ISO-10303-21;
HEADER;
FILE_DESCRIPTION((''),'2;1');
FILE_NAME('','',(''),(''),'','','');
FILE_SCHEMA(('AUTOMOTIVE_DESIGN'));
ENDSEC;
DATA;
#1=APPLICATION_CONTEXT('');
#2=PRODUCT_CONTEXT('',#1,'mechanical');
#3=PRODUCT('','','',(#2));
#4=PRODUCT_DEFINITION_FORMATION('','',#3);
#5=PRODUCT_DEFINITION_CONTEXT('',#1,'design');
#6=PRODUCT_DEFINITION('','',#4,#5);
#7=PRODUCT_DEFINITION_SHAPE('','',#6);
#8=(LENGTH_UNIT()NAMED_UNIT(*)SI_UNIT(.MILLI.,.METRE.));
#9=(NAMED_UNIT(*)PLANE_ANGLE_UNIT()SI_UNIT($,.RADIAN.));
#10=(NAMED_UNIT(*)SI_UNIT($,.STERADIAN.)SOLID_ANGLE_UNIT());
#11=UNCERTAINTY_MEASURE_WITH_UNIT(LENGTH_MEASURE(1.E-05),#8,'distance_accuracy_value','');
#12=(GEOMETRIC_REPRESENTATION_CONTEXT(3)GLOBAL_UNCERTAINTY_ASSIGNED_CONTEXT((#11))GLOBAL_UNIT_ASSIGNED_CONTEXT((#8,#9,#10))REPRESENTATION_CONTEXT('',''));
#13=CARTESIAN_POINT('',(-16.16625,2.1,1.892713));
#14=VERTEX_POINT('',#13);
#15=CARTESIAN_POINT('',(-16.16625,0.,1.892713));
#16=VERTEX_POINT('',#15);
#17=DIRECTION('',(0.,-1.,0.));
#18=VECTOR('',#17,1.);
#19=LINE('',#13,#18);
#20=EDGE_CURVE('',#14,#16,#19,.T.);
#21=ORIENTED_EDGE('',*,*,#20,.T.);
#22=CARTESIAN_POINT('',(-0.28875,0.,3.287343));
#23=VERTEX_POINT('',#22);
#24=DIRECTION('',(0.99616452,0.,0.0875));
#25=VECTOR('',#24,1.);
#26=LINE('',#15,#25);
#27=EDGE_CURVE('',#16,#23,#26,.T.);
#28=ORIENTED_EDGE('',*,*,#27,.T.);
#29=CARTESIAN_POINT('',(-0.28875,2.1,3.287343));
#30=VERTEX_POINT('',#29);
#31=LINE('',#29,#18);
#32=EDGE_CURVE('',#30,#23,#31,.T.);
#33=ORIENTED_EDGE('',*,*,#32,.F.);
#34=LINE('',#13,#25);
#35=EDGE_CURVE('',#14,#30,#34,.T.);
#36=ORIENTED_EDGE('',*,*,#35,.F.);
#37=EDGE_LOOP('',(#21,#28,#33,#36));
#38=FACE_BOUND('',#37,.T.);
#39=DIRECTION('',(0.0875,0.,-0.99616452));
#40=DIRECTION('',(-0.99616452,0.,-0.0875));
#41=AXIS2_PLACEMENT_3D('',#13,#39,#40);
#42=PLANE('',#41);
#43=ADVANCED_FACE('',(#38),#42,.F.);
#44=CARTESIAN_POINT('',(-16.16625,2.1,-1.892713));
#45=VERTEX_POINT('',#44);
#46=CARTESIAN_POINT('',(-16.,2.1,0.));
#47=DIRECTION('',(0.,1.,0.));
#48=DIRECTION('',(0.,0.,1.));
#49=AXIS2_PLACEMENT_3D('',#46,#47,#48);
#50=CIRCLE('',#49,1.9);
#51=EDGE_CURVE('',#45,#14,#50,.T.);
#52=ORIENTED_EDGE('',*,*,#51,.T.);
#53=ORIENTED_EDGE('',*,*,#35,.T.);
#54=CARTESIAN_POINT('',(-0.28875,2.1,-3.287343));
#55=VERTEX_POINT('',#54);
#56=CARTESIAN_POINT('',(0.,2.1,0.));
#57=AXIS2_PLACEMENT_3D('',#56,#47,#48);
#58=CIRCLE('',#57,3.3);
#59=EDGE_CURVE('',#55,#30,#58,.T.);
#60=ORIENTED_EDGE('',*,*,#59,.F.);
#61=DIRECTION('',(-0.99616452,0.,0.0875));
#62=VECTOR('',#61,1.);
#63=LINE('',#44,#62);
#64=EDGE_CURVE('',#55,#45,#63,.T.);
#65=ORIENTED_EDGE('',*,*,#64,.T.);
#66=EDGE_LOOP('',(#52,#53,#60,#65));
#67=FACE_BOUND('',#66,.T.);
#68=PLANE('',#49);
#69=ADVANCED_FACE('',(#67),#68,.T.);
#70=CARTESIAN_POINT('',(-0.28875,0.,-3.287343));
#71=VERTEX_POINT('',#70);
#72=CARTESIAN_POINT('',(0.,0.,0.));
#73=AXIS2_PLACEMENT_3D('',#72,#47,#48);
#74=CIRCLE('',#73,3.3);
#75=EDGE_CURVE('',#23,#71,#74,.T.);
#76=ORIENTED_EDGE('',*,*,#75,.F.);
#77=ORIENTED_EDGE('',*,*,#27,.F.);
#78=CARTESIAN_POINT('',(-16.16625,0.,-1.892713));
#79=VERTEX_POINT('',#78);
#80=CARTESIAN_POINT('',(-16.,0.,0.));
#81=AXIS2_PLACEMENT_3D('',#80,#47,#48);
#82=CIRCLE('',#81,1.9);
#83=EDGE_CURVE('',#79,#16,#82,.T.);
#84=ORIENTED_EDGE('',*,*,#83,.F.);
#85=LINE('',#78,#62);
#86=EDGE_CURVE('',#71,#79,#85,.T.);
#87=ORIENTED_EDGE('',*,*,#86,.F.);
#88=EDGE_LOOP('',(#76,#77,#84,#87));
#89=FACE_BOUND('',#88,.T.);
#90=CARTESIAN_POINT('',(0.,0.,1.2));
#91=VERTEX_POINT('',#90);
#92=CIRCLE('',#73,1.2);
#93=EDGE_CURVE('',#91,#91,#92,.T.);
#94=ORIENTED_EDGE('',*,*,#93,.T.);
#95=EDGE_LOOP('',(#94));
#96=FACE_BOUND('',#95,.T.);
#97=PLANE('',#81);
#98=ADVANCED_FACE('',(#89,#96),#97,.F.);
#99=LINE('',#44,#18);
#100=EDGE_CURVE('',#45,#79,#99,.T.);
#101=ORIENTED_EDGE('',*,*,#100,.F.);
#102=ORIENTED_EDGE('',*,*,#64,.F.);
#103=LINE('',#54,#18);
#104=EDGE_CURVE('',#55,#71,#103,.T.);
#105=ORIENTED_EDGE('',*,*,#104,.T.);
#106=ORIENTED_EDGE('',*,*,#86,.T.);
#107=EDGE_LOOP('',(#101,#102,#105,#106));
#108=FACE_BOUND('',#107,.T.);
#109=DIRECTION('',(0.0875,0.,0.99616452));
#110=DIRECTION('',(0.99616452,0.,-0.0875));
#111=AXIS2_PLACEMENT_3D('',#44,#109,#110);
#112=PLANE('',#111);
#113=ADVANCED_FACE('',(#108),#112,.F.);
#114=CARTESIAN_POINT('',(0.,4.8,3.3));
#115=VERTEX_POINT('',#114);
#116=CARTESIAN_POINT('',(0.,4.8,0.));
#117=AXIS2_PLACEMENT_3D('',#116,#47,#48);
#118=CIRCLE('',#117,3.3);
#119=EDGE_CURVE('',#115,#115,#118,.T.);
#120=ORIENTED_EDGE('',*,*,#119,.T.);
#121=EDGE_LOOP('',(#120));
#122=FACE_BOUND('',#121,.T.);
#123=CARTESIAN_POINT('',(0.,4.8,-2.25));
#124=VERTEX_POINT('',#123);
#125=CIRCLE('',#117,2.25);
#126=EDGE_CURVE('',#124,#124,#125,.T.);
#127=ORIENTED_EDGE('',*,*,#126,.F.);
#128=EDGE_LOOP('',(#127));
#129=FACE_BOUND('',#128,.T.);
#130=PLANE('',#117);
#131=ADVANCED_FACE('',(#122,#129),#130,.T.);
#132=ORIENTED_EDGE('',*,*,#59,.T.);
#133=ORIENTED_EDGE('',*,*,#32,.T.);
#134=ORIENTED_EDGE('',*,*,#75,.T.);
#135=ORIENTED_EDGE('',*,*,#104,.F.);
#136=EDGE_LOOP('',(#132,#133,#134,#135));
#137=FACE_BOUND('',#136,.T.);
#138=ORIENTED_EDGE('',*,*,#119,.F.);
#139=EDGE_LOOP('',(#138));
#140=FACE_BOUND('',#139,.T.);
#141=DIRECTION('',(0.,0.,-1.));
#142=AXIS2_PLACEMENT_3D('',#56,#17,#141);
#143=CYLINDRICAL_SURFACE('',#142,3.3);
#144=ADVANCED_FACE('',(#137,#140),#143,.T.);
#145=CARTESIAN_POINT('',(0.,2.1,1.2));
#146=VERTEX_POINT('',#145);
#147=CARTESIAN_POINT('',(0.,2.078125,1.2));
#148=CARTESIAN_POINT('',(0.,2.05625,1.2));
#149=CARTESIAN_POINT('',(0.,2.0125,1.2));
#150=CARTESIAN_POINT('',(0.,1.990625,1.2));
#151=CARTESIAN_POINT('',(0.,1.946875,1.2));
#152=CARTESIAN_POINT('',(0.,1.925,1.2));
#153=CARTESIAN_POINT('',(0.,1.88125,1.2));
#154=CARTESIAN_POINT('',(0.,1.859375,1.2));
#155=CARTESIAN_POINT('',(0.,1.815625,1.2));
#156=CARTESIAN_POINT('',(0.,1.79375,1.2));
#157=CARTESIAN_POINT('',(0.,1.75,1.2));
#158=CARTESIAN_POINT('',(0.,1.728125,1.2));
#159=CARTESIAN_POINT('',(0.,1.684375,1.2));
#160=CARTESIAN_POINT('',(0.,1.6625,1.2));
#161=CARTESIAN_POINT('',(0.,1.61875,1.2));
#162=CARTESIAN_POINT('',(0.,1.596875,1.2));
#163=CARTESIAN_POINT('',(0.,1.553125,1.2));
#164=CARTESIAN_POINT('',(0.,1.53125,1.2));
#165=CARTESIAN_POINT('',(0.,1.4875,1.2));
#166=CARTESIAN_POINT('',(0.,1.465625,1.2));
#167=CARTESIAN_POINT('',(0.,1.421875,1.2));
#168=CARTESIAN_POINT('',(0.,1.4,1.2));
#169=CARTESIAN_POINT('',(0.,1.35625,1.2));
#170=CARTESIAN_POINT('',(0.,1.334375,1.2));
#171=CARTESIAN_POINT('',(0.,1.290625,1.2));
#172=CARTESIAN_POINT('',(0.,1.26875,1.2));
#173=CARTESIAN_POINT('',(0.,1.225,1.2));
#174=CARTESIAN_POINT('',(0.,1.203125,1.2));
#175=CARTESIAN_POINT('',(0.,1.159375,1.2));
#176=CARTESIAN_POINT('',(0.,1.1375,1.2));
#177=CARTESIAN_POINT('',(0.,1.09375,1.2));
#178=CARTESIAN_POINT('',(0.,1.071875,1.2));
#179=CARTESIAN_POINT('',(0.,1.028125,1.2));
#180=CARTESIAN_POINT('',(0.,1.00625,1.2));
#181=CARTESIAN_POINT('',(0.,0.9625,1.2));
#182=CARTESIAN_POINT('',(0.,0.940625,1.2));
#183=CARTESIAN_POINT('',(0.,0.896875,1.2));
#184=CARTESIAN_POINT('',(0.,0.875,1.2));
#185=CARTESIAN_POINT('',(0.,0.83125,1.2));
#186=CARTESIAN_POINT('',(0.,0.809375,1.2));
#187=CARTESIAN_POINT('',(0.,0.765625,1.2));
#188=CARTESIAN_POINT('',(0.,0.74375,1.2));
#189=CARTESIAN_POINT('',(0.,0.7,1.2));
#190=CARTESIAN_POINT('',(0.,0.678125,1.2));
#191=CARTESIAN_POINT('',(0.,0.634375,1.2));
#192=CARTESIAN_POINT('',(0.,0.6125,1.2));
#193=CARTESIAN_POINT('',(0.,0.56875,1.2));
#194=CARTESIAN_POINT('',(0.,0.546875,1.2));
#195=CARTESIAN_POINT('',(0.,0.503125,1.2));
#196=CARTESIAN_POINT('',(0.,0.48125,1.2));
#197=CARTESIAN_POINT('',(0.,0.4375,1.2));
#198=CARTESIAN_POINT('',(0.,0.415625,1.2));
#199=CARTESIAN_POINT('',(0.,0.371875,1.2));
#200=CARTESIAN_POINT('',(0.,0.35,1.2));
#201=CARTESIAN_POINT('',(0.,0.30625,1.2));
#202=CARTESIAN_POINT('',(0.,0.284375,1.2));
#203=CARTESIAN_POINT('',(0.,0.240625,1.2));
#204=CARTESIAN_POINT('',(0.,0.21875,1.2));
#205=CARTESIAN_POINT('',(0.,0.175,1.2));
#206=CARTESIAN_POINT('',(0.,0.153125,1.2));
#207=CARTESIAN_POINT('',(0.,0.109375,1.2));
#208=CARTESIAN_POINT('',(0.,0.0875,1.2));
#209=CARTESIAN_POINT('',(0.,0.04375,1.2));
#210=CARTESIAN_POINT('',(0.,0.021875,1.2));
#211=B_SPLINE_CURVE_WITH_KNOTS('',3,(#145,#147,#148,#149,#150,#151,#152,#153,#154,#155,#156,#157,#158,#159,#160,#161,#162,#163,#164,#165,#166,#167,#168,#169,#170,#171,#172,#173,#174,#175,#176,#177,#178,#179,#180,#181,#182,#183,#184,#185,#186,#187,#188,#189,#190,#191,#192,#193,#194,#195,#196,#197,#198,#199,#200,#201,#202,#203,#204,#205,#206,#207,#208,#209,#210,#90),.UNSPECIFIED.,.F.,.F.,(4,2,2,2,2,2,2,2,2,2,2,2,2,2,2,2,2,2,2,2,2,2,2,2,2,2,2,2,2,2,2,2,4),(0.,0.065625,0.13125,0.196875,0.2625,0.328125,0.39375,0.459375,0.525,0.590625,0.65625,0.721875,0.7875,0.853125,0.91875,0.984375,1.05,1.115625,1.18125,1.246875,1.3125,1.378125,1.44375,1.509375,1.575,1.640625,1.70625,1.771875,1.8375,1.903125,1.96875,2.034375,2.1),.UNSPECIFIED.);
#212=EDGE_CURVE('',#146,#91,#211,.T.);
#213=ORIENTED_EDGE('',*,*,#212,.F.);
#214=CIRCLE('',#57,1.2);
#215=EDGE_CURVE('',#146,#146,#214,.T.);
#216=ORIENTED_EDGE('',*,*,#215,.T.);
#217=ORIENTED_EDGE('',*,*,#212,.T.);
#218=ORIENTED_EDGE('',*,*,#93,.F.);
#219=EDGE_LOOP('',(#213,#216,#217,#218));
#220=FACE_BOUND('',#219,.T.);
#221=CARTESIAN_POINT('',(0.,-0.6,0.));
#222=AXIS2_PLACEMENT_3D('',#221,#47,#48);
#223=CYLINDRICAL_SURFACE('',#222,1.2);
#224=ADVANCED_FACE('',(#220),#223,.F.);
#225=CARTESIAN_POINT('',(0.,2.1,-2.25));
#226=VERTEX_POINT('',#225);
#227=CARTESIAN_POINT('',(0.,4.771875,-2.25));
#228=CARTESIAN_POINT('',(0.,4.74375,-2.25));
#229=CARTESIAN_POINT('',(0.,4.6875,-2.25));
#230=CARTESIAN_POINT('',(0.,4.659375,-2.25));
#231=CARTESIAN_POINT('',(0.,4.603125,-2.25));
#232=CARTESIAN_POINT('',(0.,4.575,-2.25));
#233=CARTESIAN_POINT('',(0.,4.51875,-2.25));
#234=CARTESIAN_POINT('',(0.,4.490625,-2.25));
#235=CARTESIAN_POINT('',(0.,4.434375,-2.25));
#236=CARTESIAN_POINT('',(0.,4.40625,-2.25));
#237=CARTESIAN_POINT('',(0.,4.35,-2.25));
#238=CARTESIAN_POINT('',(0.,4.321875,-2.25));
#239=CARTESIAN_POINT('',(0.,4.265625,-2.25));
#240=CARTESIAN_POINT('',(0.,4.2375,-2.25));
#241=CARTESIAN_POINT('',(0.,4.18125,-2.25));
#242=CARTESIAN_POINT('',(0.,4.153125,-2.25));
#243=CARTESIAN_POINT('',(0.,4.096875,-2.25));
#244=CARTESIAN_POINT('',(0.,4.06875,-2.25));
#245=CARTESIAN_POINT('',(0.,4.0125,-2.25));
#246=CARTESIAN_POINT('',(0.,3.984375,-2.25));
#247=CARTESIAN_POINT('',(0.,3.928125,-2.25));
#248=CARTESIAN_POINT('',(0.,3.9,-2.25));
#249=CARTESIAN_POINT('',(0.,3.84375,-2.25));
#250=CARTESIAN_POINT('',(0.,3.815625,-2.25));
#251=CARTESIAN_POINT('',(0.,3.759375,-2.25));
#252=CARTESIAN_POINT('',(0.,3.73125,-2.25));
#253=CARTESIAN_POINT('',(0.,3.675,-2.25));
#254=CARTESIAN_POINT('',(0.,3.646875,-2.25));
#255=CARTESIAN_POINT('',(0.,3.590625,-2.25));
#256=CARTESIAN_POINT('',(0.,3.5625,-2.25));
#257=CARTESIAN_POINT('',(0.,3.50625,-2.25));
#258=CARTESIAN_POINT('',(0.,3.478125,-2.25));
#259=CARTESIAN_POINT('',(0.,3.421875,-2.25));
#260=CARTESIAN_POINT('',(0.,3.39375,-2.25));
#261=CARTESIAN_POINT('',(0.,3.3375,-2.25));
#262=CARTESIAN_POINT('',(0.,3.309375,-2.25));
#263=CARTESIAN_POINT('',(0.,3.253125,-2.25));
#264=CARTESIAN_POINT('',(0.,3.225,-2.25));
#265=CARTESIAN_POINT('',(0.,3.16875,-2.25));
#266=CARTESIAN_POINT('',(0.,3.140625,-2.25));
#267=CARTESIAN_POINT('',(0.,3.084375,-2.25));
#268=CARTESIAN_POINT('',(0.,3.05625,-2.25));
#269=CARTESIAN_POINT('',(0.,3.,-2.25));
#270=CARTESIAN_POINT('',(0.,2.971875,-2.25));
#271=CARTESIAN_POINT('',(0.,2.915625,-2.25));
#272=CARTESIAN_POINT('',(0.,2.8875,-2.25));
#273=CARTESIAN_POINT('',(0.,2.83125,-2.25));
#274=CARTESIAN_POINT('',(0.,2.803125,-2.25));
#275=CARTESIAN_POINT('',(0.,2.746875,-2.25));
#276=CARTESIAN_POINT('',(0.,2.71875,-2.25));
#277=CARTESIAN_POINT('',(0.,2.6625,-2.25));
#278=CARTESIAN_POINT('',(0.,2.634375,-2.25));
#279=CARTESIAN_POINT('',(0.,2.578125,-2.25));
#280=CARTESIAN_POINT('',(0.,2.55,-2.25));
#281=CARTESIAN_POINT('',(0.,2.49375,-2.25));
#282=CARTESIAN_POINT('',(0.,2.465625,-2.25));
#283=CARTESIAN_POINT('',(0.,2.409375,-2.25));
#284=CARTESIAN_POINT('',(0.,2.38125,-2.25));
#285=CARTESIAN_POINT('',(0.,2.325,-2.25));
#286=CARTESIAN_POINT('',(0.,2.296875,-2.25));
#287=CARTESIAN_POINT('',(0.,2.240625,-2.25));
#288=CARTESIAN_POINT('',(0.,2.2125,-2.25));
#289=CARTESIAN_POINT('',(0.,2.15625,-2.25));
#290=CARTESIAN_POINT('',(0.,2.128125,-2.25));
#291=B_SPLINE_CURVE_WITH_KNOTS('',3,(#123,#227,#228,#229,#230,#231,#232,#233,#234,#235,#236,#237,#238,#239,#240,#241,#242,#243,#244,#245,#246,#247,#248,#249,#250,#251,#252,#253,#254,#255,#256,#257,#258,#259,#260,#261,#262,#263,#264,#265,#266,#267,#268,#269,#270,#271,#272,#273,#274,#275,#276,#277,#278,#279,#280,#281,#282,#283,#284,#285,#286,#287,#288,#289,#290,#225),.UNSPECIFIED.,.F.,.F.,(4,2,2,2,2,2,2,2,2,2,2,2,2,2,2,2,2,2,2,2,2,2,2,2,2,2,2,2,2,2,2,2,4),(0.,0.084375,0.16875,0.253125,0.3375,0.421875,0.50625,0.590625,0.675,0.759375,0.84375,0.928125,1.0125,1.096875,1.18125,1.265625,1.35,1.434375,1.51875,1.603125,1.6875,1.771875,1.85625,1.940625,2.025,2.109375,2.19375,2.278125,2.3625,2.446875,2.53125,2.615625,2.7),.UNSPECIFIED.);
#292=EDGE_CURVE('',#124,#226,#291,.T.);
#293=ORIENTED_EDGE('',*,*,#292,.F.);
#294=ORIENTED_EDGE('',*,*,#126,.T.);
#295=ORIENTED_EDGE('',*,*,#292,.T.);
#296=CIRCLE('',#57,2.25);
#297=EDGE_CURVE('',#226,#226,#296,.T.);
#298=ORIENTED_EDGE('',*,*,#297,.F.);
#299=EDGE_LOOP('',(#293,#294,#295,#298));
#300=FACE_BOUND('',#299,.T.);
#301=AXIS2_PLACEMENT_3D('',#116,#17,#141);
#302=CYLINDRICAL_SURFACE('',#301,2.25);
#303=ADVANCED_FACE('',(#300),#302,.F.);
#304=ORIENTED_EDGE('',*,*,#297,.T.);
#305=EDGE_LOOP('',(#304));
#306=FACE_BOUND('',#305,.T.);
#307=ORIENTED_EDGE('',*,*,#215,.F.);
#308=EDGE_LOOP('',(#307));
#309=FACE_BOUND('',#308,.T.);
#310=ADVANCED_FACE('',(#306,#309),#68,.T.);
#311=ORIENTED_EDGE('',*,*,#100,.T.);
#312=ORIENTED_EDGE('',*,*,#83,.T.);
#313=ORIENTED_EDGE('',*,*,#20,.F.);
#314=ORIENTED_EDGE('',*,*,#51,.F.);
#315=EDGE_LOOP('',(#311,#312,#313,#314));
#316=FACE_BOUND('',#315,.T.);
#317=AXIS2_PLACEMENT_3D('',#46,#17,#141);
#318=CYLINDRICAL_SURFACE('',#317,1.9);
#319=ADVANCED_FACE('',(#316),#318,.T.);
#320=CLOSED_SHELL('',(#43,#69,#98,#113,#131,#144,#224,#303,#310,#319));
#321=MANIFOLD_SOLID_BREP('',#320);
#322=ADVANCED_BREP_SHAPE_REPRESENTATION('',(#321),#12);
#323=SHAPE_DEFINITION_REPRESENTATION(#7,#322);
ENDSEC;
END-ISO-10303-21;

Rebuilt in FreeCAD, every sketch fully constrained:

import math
import FreeCAD as App
import Part
import Sketcher

V = App.Vector

doc = App.newDocument("Part")
body = doc.addObject("PartDesign::Body", "Body")

sketch1 = doc.addObject("Sketcher::SketchObject", "Sketch")
body.addObject(sketch1)
sketch1.AttachmentSupport = (doc.XZ_Plane, [""])
sketch1.MapMode = "FlatFace"
sketch1.addGeometry([
    Part.LineSegment(V(-0.28875, -3.287343, 0), V(-16.16625, -1.892713, 0)),
    Part.ArcOfCircle(Part.Circle(V(-16, 0, 0), V(0, 0, 1), 1.9), math.radians(95.0198), math.radians(264.9802)),
    Part.LineSegment(V(-16.16625, 1.892713, 0), V(-0.28875, 3.287343, 0)),
    Part.ArcOfCircle(Part.Circle(V(0, 0, 0), V(0, 0, 1), 3.3), math.radians(-95.0198), math.radians(95.0198)),
], False)
sketch1.addConstraint([
    Sketcher.Constraint("Tangent", 0, 2, 1, 2),
    Sketcher.Constraint("Tangent", 1, 1, 2, 1),
    Sketcher.Constraint("Tangent", 2, 2, 3, 2),
    Sketcher.Constraint("Tangent", 3, 1, 0, 1),
    Sketcher.Constraint("Coincident", 3, 3, -1, 1),
    Sketcher.Constraint("PointOnObject", 1, 3, -1),
    Sketcher.Constraint("Radius", 1, 1.9),
    Sketcher.Constraint("Radius", 3, 3.3),
    Sketcher.Constraint("DistanceX", 1, 3, -1, 1, 16.0),
])
pad1 = doc.addObject("PartDesign::Pad", "Pad")
body.addObject(pad1)
pad1.Profile = sketch1
pad1.Length = 2.1
pad1.Reversed = True

sketch2 = doc.addObject("Sketcher::SketchObject", "Sketch001")
body.addObject(sketch2)
sketch2.AttachmentSupport = (doc.XZ_Plane, [""])
sketch2.MapMode = "FlatFace"
sketch2.AttachmentOffset = App.Placement(V(0, 0, -2.1), App.Rotation())
sketch2.addGeometry([
    Part.Circle(V(0, 0, 0), V(0, 0, 1), 3.3),
    Part.Circle(V(0, 0, 0), V(0, 0, 1), 2.25),
], False)
sketch2.addConstraint([
    Sketcher.Constraint("Coincident", 0, 3, -1, 1),
    Sketcher.Constraint("Coincident", 1, 3, -1, 1),
    Sketcher.Constraint("Diameter", 0, 6.6),
    Sketcher.Constraint("Diameter", 1, 4.5),
])
pad2 = doc.addObject("PartDesign::Pad", "Pad001")
body.addObject(pad2)
pad2.Profile = sketch2
pad2.Length = 2.7
pad2.Reversed = True

sketch3 = doc.addObject("Sketcher::SketchObject", "Sketch002")
body.addObject(sketch3)
sketch3.AttachmentSupport = (doc.XZ_Plane, [""])
sketch3.MapMode = "FlatFace"
sketch3.AttachmentOffset = App.Placement(V(0, 0, -2.1), App.Rotation())
sketch3.addGeometry(Part.Circle(V(0, 0, 0), V(0, 0, 1), 1.2), False)
sketch3.addConstraint([
    Sketcher.Constraint("Coincident", 0, 3, -1, 1),
    Sketcher.Constraint("Diameter", 0, 2.4),
])
pocket1 = doc.addObject("PartDesign::Pocket", "Pocket")
body.addObject(pocket1)
pocket1.Profile = sketch3
pocket1.Length = 2.7
pocket1.Reversed = True

doc.recompute()
